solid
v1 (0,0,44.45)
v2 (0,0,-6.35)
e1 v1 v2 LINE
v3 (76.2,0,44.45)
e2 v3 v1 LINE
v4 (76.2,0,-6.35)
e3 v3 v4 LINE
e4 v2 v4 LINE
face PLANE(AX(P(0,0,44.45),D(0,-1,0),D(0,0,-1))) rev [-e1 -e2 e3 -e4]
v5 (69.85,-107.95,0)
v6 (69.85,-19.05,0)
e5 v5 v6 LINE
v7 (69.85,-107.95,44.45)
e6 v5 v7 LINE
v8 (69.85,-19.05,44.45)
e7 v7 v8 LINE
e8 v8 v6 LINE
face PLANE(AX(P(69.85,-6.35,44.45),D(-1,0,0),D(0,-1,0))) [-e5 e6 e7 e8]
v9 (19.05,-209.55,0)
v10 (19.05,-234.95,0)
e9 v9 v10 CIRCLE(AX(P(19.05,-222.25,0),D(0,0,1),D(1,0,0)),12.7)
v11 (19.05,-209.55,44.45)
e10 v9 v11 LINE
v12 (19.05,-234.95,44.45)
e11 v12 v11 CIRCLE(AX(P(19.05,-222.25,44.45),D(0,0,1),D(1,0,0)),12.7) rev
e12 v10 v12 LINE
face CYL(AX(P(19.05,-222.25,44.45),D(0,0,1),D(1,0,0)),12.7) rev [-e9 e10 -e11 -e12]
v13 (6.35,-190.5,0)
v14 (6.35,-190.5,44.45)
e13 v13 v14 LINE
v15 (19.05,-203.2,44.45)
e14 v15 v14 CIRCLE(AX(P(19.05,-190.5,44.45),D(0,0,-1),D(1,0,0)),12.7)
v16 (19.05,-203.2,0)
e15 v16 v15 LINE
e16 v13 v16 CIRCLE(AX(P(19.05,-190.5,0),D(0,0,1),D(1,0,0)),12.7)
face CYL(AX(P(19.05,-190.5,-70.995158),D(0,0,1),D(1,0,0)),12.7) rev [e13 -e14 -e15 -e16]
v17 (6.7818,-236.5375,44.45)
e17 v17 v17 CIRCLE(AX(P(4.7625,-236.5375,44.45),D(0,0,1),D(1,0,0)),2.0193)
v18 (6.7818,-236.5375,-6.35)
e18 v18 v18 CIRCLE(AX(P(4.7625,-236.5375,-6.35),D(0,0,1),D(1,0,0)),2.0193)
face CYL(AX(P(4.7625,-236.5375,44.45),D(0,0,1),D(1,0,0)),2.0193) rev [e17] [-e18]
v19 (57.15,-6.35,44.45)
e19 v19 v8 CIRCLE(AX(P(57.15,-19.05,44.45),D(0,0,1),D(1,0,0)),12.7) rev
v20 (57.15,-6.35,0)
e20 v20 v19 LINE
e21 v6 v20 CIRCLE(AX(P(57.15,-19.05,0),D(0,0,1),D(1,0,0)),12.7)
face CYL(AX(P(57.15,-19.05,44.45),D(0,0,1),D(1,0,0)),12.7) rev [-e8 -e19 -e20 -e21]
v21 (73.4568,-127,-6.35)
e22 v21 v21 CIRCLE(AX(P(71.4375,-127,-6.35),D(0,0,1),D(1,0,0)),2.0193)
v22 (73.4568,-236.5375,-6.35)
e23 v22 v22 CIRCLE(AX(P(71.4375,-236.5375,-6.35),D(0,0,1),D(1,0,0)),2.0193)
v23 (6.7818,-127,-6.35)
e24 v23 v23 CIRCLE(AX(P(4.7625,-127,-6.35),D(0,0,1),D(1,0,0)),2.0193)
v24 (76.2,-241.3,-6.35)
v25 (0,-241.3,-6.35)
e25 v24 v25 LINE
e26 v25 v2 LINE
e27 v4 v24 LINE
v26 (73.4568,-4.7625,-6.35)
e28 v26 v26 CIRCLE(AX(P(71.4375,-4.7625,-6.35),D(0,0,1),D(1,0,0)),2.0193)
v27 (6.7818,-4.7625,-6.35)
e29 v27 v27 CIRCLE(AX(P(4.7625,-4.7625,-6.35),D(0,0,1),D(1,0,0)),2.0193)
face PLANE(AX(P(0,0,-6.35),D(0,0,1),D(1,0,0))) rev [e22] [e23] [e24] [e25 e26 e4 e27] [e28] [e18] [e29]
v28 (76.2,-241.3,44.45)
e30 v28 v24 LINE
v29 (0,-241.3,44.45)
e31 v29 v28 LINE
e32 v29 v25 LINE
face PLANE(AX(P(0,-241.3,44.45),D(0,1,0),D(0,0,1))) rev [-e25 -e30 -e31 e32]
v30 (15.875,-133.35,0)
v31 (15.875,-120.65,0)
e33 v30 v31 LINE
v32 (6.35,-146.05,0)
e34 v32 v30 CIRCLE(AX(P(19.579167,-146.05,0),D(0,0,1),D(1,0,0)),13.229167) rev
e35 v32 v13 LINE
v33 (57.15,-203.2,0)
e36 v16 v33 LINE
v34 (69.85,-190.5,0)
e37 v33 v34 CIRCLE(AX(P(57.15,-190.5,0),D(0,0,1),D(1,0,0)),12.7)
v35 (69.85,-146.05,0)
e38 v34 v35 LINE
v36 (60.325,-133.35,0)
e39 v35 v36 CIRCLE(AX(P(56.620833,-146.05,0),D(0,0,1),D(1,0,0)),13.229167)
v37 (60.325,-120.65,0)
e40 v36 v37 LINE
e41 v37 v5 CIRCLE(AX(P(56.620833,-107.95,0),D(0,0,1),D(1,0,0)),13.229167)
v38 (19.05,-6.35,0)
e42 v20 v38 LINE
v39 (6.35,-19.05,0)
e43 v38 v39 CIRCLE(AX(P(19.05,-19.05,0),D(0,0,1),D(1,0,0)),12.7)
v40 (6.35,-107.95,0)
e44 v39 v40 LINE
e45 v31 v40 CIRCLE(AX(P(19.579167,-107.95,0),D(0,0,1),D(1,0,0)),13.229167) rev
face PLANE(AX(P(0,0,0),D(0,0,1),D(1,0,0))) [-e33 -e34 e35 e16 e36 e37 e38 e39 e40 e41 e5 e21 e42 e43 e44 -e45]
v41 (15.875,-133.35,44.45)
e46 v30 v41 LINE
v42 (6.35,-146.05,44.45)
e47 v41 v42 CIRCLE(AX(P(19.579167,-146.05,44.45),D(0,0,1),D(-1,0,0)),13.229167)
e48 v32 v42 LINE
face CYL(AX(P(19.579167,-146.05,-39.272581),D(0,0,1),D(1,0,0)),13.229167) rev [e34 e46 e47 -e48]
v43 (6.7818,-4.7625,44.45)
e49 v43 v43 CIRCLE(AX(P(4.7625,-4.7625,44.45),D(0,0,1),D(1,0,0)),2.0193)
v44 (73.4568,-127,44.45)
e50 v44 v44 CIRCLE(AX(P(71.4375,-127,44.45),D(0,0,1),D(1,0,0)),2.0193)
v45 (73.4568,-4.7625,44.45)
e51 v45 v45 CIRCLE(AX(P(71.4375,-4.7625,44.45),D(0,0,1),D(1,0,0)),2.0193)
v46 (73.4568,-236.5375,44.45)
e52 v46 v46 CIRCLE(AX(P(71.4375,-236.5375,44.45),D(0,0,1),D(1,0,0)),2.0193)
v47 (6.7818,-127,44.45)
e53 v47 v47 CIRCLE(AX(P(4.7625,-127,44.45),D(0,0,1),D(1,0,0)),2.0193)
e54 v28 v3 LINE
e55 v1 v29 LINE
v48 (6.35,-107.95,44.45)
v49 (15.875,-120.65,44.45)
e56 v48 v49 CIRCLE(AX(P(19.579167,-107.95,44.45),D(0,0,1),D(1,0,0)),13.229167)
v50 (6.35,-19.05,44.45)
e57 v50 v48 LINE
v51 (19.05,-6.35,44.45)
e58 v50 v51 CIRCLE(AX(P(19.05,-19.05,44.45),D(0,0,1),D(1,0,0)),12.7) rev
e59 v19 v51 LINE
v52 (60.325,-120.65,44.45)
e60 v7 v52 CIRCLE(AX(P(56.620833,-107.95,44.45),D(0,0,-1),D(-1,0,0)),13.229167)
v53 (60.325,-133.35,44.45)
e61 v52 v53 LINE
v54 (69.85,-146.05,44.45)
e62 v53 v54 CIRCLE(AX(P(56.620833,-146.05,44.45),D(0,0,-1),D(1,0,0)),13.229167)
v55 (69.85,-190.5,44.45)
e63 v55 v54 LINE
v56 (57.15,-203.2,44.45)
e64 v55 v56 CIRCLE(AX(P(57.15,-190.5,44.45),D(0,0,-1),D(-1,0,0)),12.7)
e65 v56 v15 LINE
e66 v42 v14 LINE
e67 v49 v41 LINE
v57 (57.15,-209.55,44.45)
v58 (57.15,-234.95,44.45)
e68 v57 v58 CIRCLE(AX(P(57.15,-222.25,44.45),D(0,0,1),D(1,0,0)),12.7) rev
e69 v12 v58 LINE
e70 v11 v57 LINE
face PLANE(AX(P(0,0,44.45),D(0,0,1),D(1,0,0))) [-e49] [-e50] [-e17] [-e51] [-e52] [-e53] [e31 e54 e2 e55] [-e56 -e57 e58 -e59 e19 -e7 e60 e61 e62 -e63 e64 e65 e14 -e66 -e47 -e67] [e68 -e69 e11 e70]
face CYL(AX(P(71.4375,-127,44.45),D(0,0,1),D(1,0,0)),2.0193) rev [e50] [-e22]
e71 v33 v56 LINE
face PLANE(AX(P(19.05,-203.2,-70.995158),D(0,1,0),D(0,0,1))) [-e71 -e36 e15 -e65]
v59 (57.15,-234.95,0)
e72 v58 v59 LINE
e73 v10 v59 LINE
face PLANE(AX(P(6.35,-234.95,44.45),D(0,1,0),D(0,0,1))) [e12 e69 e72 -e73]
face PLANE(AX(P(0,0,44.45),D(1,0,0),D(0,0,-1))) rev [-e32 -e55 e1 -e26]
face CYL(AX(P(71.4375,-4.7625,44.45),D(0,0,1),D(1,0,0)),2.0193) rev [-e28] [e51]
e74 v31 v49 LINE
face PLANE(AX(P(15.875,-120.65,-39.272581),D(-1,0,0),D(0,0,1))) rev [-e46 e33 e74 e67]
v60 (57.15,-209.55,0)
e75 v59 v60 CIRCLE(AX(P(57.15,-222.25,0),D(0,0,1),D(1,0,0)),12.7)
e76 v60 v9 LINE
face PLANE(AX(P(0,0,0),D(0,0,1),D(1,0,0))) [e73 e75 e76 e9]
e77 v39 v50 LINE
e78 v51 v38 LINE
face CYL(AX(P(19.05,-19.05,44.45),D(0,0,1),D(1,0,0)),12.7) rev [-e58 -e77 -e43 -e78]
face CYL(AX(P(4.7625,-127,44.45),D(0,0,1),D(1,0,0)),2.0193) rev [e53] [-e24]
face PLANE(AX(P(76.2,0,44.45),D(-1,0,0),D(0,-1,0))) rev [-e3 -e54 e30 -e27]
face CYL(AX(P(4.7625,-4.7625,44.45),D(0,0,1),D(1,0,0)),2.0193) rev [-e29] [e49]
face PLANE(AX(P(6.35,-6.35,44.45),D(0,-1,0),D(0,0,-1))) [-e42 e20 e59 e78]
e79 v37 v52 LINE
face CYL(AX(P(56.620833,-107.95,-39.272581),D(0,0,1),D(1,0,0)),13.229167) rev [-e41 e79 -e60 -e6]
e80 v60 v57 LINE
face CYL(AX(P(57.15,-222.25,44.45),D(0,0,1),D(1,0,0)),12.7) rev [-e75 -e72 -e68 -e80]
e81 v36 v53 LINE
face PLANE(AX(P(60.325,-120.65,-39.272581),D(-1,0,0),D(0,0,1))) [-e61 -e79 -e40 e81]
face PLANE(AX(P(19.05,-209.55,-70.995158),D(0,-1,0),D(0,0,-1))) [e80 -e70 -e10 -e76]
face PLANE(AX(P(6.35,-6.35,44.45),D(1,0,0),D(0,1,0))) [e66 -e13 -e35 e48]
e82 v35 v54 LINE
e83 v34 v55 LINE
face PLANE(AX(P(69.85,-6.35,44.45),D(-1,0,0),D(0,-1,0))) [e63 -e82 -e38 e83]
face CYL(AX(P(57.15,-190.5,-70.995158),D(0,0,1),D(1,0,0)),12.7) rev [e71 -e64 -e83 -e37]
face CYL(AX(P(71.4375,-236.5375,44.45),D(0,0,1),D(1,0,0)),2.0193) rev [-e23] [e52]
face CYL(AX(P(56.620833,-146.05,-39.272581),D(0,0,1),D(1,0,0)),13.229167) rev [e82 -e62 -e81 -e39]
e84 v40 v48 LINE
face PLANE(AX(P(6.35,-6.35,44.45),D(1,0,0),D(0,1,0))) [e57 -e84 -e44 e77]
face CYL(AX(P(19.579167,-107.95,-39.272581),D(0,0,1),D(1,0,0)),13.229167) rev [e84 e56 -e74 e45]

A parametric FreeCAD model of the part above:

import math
import FreeCAD as App
import Part
import Sketcher
from FreeCAD import Vector
Q = App.Units.Quantity


def edges_at(feature, points):
    """Names of the edges that pass closest to the given points."""
    edges = feature.Shape.Edges
    near = lambda p: min(range(len(edges)), key=lambda i: edges[i].distToShape(Part.Vertex(*p))[0])
    return sorted({f"Edge{near(p) + 1}" for p in points})


def add_polygon(sketch, points):
    """Adds a closed chain of lines whose ends are joined by coincident constraints."""
    first, n = sketch.GeometryCount, len(points)
    for a, b in zip(points, points[1:] + points[:1]):
        sketch.addGeometry(Part.LineSegment(App.Vector(*a, 0), App.Vector(*b, 0)), False)
    for i in range(n):
        sketch.addConstraint(Sketcher.Constraint("Coincident", first + i, 2, first + (i + 1) % n, 1))

doc = App.newDocument("Part")
body = doc.addObject("PartDesign::Body", "Body")

sketch1 = body.newObject("Sketcher::SketchObject", "Sketch")
sketch1.AttachmentSupport = (doc.getObject("XY_Plane"), [""])
sketch1.MapMode = "FlatFace"
add_polygon(sketch1, [(0, 0), (0, -241.3), (76.2, -241.3), (76.2, 0)])
add_polygon(sketch1, [(69.85, -234.95), (6.35, -234.95), (6.35, -6.35), (69.85, -6.35)])
sketch1.addConstraint(Sketcher.Constraint("Vertical", 0))
sketch1.addConstraint(Sketcher.Constraint("Horizontal", 1))
sketch1.addConstraint(Sketcher.Constraint("Vertical", 2))
sketch1.addConstraint(Sketcher.Constraint("Horizontal", 3))
sketch1.addConstraint(Sketcher.Constraint("Horizontal", 4))
sketch1.addConstraint(Sketcher.Constraint("Vertical", 5))
sketch1.addConstraint(Sketcher.Constraint("Horizontal", 6))
sketch1.addConstraint(Sketcher.Constraint("Vertical", 7))
sketch1.addConstraint(Sketcher.Constraint("Coincident", 3, 2, -1, 1))
sketch1.addConstraint(Sketcher.Constraint("DistanceX", 1, 1, 1, 2, Q("3 in")))
sketch1.addConstraint(Sketcher.Constraint("DistanceY", 5, 1, 5, 2, Q("9 in")))
sketch1.addConstraint(Sketcher.Constraint("DistanceX", 4, 2, 4, 1, Q("2.5 in")))
sketch1.addConstraint(Sketcher.Constraint("DistanceY", 0, 2, 0, 1, Q("9.5 in")))
sketch1.addConstraint(Sketcher.Constraint("DistanceX", -1, 1, 4, 2, Q("0.25 in")))
sketch1.addConstraint(Sketcher.Constraint("DistanceY", 4, 2, -1, 1, Q("9.25 in")))
pad1 = body.newObject("PartDesign::Pad", "Pad")
pad1.Profile = sketch1
pad1.Length = Q("1.75 in")
doc.recompute()

fillet = body.newObject("PartDesign::Fillet", "Fillet")
fillet.Base = (pad1, edges_at(pad1, [
    (6.35, -6.35, 22.225),
    (6.35, -234.95, 22.225),
    (69.85, -234.95, 22.225),
    (69.85, -6.35, 22.225),
]))
fillet.Radius = Q("0.5 in")

sketch2 = body.newObject("Sketcher::SketchObject", "Sketch001")
sketch2.AttachmentSupport = (doc.getObject("XY_Plane"), [""])
sketch2.MapMode = "FlatFace"
add_polygon(sketch2, [(76.2, 0), (76.2, -241.3), (0, -241.3), (0, 0)])
sketch2.addConstraint(Sketcher.Constraint("Vertical", 0))
sketch2.addConstraint(Sketcher.Constraint("Horizontal", 1))
sketch2.addConstraint(Sketcher.Constraint("Vertical", 2))
sketch2.addConstraint(Sketcher.Constraint("Horizontal", 3))
sketch2.addConstraint(Sketcher.Constraint("Coincident", 2, 2, -1, 1))
sketch2.addConstraint(Sketcher.Constraint("DistanceX", 1, 2, 1, 1, Q("3 in")))
sketch2.addConstraint(Sketcher.Constraint("DistanceY", 0, 2, 0, 1, Q("9.5 in")))
pad2 = body.newObject("PartDesign::Pad", "Pad001")
pad2.Profile = sketch2
pad2.Length = Q("0.25 in")
pad2.Reversed = True

sketch3 = body.newObject("Sketcher::SketchObject", "Sketch002")
sketch3.AttachmentSupport = (doc.getObject("XY_Plane"), [""])
sketch3.MapMode = "FlatFace"
sketch3.AttachmentOffset = App.Placement(Vector(0, 0, 1.75 * 25.4), App.Rotation())
sketch3.addGeometry(Part.LineSegment(Vector(60.325, -120.65, 0), Vector(60.325, -133.35, 0)), False)
sketch3.addGeometry(Part.ArcOfCircle(Part.Circle(Vector(56.620833, -146.05, 0), Vector(0, 0, 1), 13.229167), math.radians(0), math.radians(73.739795)), False)
sketch3.addGeometry(Part.LineSegment(Vector(69.85, -146.05, 0), Vector(69.85, -107.95, 0)), False)
sketch3.addGeometry(Part.ArcOfCircle(Part.Circle(Vector(56.620833, -107.95, 0), Vector(0, 0, 1), 13.229167), math.radians(-73.739795), math.radians(0)), False)
sketch3.addConstraint(Sketcher.Constraint("Coincident", 0, 2, 1, 2))
sketch3.addConstraint(Sketcher.Constraint("Tangent", 1, 1, 2, 1))
sketch3.addConstraint(Sketcher.Constraint("Tangent", 2, 2, 3, 2))
sketch3.addConstraint(Sketcher.Constraint("Coincident", 3, 1, 0, 1))
sketch3.addConstraint(Sketcher.Constraint("Vertical", 0))
sketch3.addConstraint(Sketcher.Constraint("Vertical", 2))
sketch3.addConstraint(Sketcher.Constraint("Equal", 1, 3))
sketch3.addConstraint(Sketcher.Constraint("DistanceY", 0, 2, 0, 1, Q("0.5 in")))
sketch3.addConstraint(Sketcher.Constraint("DistanceY", 2, 1, 2, 2, Q("1.5 in")))
sketch3.addConstraint(Sketcher.Constraint("DistanceY", 1, 3, -1, 1, Q("5.75 in")))
sketch3.addConstraint(Sketcher.Constraint("DistanceX", -1, 1, 1, 1, Q("2.75 in")))
sketch3.addConstraint(Sketcher.Constraint("DistanceX", -1, 1, 0, 2, Q("2.375 in")))
pad3 = body.newObject("PartDesign::Pad", "Pad002")
pad3.Profile = sketch3
pad3.Length = Q("1.75 in")
pad3.Reversed = True
doc.recompute()

datumplane = body.newObject("PartDesign::Plane", "DatumPlane")
datumplane.AttachmentSupport = (doc.getObject("YZ_Plane"), [""])
datumplane.MapMode = "FlatFace"
datumplane.AttachmentOffset = App.Placement(Vector(0, 0, 1.5 * 25.4), App.Rotation())
mirrored = body.newObject("PartDesign::Mirrored", "Mirrored")
mirrored.Originals = [pad3]
mirrored.MirrorPlane = (datumplane, [""])
body.Tip = mirrored

sketch4 = body.newObject("Sketcher::SketchObject", "Sketch003")
sketch4.AttachmentSupport = (doc.getObject("XY_Plane"), [""])
sketch4.MapMode = "FlatFace"
sketch4.AttachmentOffset = App.Placement(Vector(0, 0, 1.75 * 25.4), App.Rotation())
sketch4.addGeometry(Part.Circle(Vector(4.7625, -4.7625, 0), Vector(0, 0, 1), 2.0193), False)
sketch4.addGeometry(Part.Circle(Vector(71.4375, -4.7625, 0), Vector(0, 0, 1), 2.0193), False)
sketch4.addGeometry(Part.Circle(Vector(71.4375, -127, 0), Vector(0, 0, 1), 2.0193), False)
sketch4.addGeometry(Part.Circle(Vector(4.7625, -127, 0), Vector(0, 0, 1), 2.0193), False)
sketch4.addGeometry(Part.Circle(Vector(4.7625, -236.5375, 0), Vector(0, 0, 1), 2.0193), False)
sketch4.addGeometry(Part.Circle(Vector(71.4375, -236.5375, 0), Vector(0, 0, 1), 2.0193), False)
sketch4.addConstraint(Sketcher.Constraint("Equal", 0, 1))
sketch4.addConstraint(Sketcher.Constraint("Equal", 1, 2))
sketch4.addConstraint(Sketcher.Constraint("Equal", 2, 3))
sketch4.addConstraint(Sketcher.Constraint("Equal", 3, 4))
sketch4.addConstraint(Sketcher.Constraint("Equal", 4, 5))
sketch4.addConstraint(Sketcher.Constraint("Horizontal", 0, 3, 1, 3))
sketch4.addConstraint(Sketcher.Constraint("Horizontal", 2, 3, 3, 3))
sketch4.addConstraint(Sketcher.Constraint("Horizontal", 4, 3, 5, 3))
sketch4.addConstraint(Sketcher.Constraint("Vertical", 1, 3, 2, 3))
sketch4.addConstraint(Sketcher.Constraint("Vertical", 0, 3, 3, 3))
sketch4.addConstraint(Sketcher.Constraint("Vertical", 3, 3, 4, 3))
sketch4.addConstraint(Sketcher.Constraint("Vertical", 2, 3, 5, 3))
sketch4.addConstraint(Sketcher.Constraint("Diameter", 0, Q("0.159 in")))
sketch4.addConstraint(Sketcher.Constraint("DistanceY", 2, 3, -1, 1, Q("5 in")))
sketch4.addConstraint(Sketcher.Constraint("DistanceX", -1, 1, 0, 3, Q("0.1875 in")))
sketch4.addConstraint(Sketcher.Constraint("DistanceY", 0, 3, -1, 1, Q("0.1875 in")))
sketch4.addConstraint(Sketcher.Constraint("DistanceX", -1, 1, 1, 3, Q("2.8125 in")))
sketch4.addConstraint(Sketcher.Constraint("DistanceY", 4, 3, -1, 1, Q("9.3125 in")))
doc.recompute()
hole = body.newObject("PartDesign::Hole", "Hole")
hole.Profile = sketch4
hole.ThreadType = "None"
hole.Diameter = Q("0.159 in")
hole.DepthType = "ThroughAll"

sketch5 = body.newObject("Sketcher::SketchObject", "Sketch004")
sketch5.AttachmentSupport = (doc.getObject("XY_Plane"), [""])
sketch5.MapMode = "FlatFace"
sketch5.AttachmentOffset = App.Placement(Vector(0, 0, 1.75 * 25.4), App.Rotation())
sketch5.addGeometry(Part.LineSegment(Vector(19.05, -209.55, 0), Vector(57.15, -209.55, 0)), False)
sketch5.addGeometry(Part.ArcOfCircle(Part.Circle(Vector(57.15, -222.25, 0), Vector(0, 0, 1), 12.7), math.radians(0), math.radians(90)), False)
sketch5.addGeometry(Part.LineSegment(Vector(69.85, -222.25, 0), Vector(69.85, -190.5, 0)), False)
sketch5.addGeometry(Part.ArcOfCircle(Part.Circle(Vector(57.15, -190.5, 0), Vector(0, 0, 1), 12.7), math.radians(-90), math.radians(0)), False)
sketch5.addGeometry(Part.LineSegment(Vector(57.15, -203.2, 0), Vector(19.05, -203.2, 0)), False)
sketch5.addGeometry(Part.ArcOfCircle(Part.Circle(Vector(19.05, -190.5, 0), Vector(0, 0, 1), 12.7), math.radians(180), math.radians(270)), False)
sketch5.addGeometry(Part.LineSegment(Vector(6.35, -190.5, 0), Vector(6.35, -222.25, 0)), False)
sketch5.addGeometry(Part.ArcOfCircle(Part.Circle(Vector(19.05, -222.25, 0), Vector(0, 0, 1), 12.7), math.radians(90), math.radians(180)), False)
sketch5.addConstraint(Sketcher.Constraint("Tangent", 0, 2, 1, 2))
sketch5.addConstraint(Sketcher.Constraint("Tangent", 1, 1, 2, 1))
sketch5.addConstraint(Sketcher.Constraint("Tangent", 2, 2, 3, 2))
sketch5.addConstraint(Sketcher.Constraint("Tangent", 3, 1, 4, 1))
sketch5.addConstraint(Sketcher.Constraint("Tangent", 4, 2, 5, 2))
sketch5.addConstraint(Sketcher.Constraint("Tangent", 5, 1, 6, 1))
sketch5.addConstraint(Sketcher.Constraint("Tangent", 6, 2, 7, 2))
sketch5.addConstraint(Sketcher.Constraint("Tangent", 7, 1, 0, 1))
sketch5.addConstraint(Sketcher.Constraint("Horizontal", 0))
sketch5.addConstraint(Sketcher.Constraint("Vertical", 2))
sketch5.addConstraint(Sketcher.Constraint("Horizontal", 4))
sketch5.addConstraint(Sketcher.Constraint("Vertical", 6))
sketch5.addConstraint(Sketcher.Constraint("Equal", 1, 3))
sketch5.addConstraint(Sketcher.Constraint("Equal", 3, 5))
sketch5.addConstraint(Sketcher.Constraint("Equal", 5, 7))
sketch5.addConstraint(Sketcher.Constraint("Radius", 1, Q("0.5 in")))
sketch5.addConstraint(Sketcher.Constraint("DistanceX", 0, 1, 0, 2, Q("1.5 in")))
sketch5.addConstraint(Sketcher.Constraint("DistanceY", 3, 1, -1, 1, Q("8 in")))
sketch5.addConstraint(Sketcher.Constraint("DistanceY", 2, 1, 2, 2, Q("1.25 in")))
sketch5.addConstraint(Sketcher.Constraint("DistanceX", -1, 1, 1, 3, Q("2.25 in")))
pad4 = body.newObject("PartDesign::Pad", "Pad003")
pad4.Profile = sketch5
pad4.Length = Q("1.75 in")
pad4.Reversed = True

doc.recompute()
